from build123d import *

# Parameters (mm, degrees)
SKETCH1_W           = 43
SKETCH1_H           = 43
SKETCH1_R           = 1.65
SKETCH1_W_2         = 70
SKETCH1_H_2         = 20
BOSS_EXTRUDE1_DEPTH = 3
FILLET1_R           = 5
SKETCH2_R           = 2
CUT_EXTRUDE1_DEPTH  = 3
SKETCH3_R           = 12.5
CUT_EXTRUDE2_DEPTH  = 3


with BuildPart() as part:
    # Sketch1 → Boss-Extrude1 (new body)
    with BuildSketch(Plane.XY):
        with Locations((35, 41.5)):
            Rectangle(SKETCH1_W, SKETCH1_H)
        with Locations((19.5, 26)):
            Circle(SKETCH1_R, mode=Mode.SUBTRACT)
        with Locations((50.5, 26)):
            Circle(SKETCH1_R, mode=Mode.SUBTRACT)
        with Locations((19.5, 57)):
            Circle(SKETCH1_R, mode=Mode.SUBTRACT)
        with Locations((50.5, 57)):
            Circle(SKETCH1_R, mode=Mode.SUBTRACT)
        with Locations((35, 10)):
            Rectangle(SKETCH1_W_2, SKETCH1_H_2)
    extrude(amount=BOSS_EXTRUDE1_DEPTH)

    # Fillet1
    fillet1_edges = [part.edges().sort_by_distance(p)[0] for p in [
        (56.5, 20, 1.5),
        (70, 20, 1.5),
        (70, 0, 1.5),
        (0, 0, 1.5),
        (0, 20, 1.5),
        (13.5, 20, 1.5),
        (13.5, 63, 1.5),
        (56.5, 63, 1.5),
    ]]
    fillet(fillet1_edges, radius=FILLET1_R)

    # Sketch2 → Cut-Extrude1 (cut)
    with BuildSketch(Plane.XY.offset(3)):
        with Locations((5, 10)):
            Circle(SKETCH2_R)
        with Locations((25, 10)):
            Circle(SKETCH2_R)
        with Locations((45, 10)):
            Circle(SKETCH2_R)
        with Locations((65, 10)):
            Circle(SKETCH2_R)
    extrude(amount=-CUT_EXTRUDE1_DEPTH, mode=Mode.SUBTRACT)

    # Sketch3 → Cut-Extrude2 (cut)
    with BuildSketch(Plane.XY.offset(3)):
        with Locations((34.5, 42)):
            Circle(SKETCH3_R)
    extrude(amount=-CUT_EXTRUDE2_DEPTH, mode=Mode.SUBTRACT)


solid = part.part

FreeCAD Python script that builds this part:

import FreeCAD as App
import Part
import Sketcher
from FreeCAD import Vector
Q = App.Units.Quantity


def edges_at(feature, points):
    """Names of the edges that pass closest to the given points."""
    edges = feature.Shape.Edges
    near = lambda p: min(range(len(edges)), key=lambda i: edges[i].distToShape(Part.Vertex(*p))[0])
    return sorted({f"Edge{near(p) + 1}" for p in points})

doc = App.newDocument("Part")
body = doc.addObject("PartDesign::Body", "Body")

sketch1 = body.newObject("Sketcher::SketchObject", "Sketch")
sketch1.AttachmentSupport = (doc.getObject("XY_Plane"), [""])
sketch1.MapMode = "FlatFace"
sketch1.addGeometry(Part.LineSegment(Vector(13.5, 63, 0), Vector(13.5, 20, 0)), False)
sketch1.addGeometry(Part.LineSegment(Vector(13.5, 20, 0), Vector(0, 20, 0)), False)
sketch1.addGeometry(Part.LineSegment(Vector(0, 20, 0), Vector(0, 0, 0)), False)
sketch1.addGeometry(Part.LineSegment(Vector(0, 0, 0), Vector(70, 0, 0)), False)
sketch1.addGeometry(Part.LineSegment(Vector(70, 0, 0), Vector(70, 20, 0)), False)
sketch1.addGeometry(Part.LineSegment(Vector(70, 20, 0), Vector(56.5, 20, 0)), False)
sketch1.addGeometry(Part.LineSegment(Vector(56.5, 20, 0), Vector(56.5, 63, 0)), False)
sketch1.addGeometry(Part.LineSegment(Vector(56.5, 63, 0), Vector(13.5, 63, 0)), False)
sketch1.addGeometry(Part.Circle(Vector(19.5, 26, 0), Vector(0, 0, 1), 1.65), False)
sketch1.addGeometry(Part.Circle(Vector(50.5, 26, 0), Vector(0, 0, 1), 1.65), False)
sketch1.addGeometry(Part.Circle(Vector(19.5, 57, 0), Vector(0, 0, 1), 1.65), False)
sketch1.addGeometry(Part.Circle(Vector(50.5, 57, 0), Vector(0, 0, 1), 1.65), False)
sketch1.addConstraint(Sketcher.Constraint("Coincident", 0, 2, 1, 1))
sketch1.addConstraint(Sketcher.Constraint("Coincident", 1, 2, 2, 1))
sketch1.addConstraint(Sketcher.Constraint("Coincident", 2, 2, 3, 1))
sketch1.addConstraint(Sketcher.Constraint("Coincident", 3, 2, 4, 1))
sketch1.addConstraint(Sketcher.Constraint("Coincident", 4, 2, 5, 1))
sketch1.addConstraint(Sketcher.Constraint("Coincident", 5, 2, 6, 1))
sketch1.addConstraint(Sketcher.Constraint("Coincident", 6, 2, 7, 1))
sketch1.addConstraint(Sketcher.Constraint("Coincident", 7, 2, 0, 1))
sketch1.addConstraint(Sketcher.Constraint("Vertical", 0))
sketch1.addConstraint(Sketcher.Constraint("Horizontal", 1))
sketch1.addConstraint(Sketcher.Constraint("Vertical", 2))
sketch1.addConstraint(Sketcher.Constraint("Horizontal", 3))
sketch1.addConstraint(Sketcher.Constraint("Vertical", 4))
sketch1.addConstraint(Sketcher.Constraint("Horizontal", 5))
sketch1.addConstraint(Sketcher.Constraint("Vertical", 6))
sketch1.addConstraint(Sketcher.Constraint("Horizontal", 7))
sketch1.addConstraint(Sketcher.Constraint("Coincident", 2, 2, -1, 1))
sketch1.addConstraint(Sketcher.Constraint("Equal", 8, 9))
sketch1.addConstraint(Sketcher.Constraint("Equal", 9, 10))
sketch1.addConstraint(Sketcher.Constraint("Equal", 10, 11))
sketch1.addConstraint(Sketcher.Constraint("Horizontal", 8, 3, 9, 3))
sketch1.addConstraint(Sketcher.Constraint("Horizontal", 10, 3, 11, 3))
sketch1.addConstraint(Sketcher.Constraint("Horizontal", 1, 2, 4, 2))
sketch1.addConstraint(Sketcher.Constraint("Vertical", 8, 3, 10, 3))
sketch1.addConstraint(Sketcher.Constraint("Vertical", 9, 3, 11, 3))
sketch1.addConstraint(Sketcher.Constraint("Equal", 1, 5))
sketch1.addConstraint(Sketcher.Constraint("Equal", 7, 0))
sketch1.addConstraint(Sketcher.Constraint("Diameter", 8, Q("3.3 mm")))
sketch1.addConstraint(Sketcher.Constraint("DistanceX", 3, 1, 3, 2, Q("70 mm")))
sketch1.addConstraint(Sketcher.Constraint("DistanceX", 7, 2, 7, 1, Q("43 mm")))
sketch1.addConstraint(Sketcher.Constraint("DistanceY", 2, 2, 2, 1, Q("20 mm")))
sketch1.addConstraint(Sketcher.Constraint("DistanceY", -1, 1, 8, 3, Q("26 mm")))
sketch1.addConstraint(Sketcher.Constraint("DistanceY", -1, 1, 10, 3, Q("57 mm")))
sketch1.addConstraint(Sketcher.Constraint("DistanceX", 8, 3, 9, 3, Q("31 mm")))
sketch1.addConstraint(Sketcher.Constraint("DistanceX", 0, 2, 8, 3, Q("6 mm")))
pad1 = body.newObject("PartDesign::Pad", "Pad")
pad1.Profile = sketch1
pad1.Length = 3
doc.recompute()

fillet = body.newObject("PartDesign::Fillet", "Fillet")
fillet.Base = (pad1, edges_at(pad1, [
    (56.5, 20, 1.5),
    (70, 20, 1.5),
    (70, 0, 1.5),
    (0, 0, 1.5),
    (0, 20, 1.5),
    (13.5, 20, 1.5),
    (13.5, 63, 1.5),
    (56.5, 63, 1.5),
]))
fillet.Radius = 5

sketch2 = body.newObject("Sketcher::SketchObject", "Sketch001")
sketch2.AttachmentSupport = (doc.getObject("XY_Plane"), [""])
sketch2.MapMode = "FlatFace"
sketch2.AttachmentOffset = App.Placement(Vector(0, 0, 3), App.Rotation())
sketch2.addGeometry(Part.Circle(Vector(5, 10, 0), Vector(0, 0, 1), 2), False)
sketch2.addGeometry(Part.Circle(Vector(25, 10, 0), Vector(0, 0, 1), 2), False)
sketch2.addGeometry(Part.Circle(Vector(45, 10, 0), Vector(0, 0, 1), 2), False)
sketch2.addGeometry(Part.Circle(Vector(65, 10, 0), Vector(0, 0, 1), 2), False)
sketch2.addConstraint(Sketcher.Constraint("Equal", 0, 1))
sketch2.addConstraint(Sketcher.Constraint("Equal", 1, 2))
sketch2.addConstraint(Sketcher.Constraint("Equal", 2, 3))
sketch2.addConstraint(Sketcher.Constraint("Horizontal", 0, 3, 1, 3))
sketch2.addConstraint(Sketcher.Constraint("Horizontal", 1, 3, 2, 3))
sketch2.addConstraint(Sketcher.Constraint("Horizontal", 2, 3, 3, 3))
sketch2.addConstraint(Sketcher.Constraint("Diameter", 0, Q("4 mm")))
sketch2.addConstraint(Sketcher.Constraint("DistanceX", -1, 1, 0, 3, Q("5 mm")))
sketch2.addConstraint(Sketcher.Constraint("DistanceY", -1, 1, 0, 3, Q("10 mm")))
sketch2.addConstraint(Sketcher.Constraint("DistanceX", -1, 1, 1, 3, Q("25 mm")))
sketch2.addConstraint(Sketcher.Constraint("DistanceX", -1, 1, 2, 3, Q("45 mm")))
sketch2.addConstraint(Sketcher.Constraint("DistanceX", -1, 1, 3, 3, Q("65 mm")))
pocket1 = body.newObject("PartDesign::Pocket", "Pocket")
pocket1.Profile = sketch2
pocket1.Length = 3

sketch3 = body.newObject("Sketcher::SketchObject", "Sketch002")
sketch3.AttachmentSupport = (doc.getObject("XY_Plane"), [""])
sketch3.MapMode = "FlatFace"
sketch3.AttachmentOffset = App.Placement(Vector(0, 0, 3), App.Rotation())
sketch3.addGeometry(Part.Circle(Vector(34.5, 42, 0), Vector(0, 0, 1), 12.5), False)
sketch3.addConstraint(Sketcher.Constraint("Diameter", 0, Q("25 mm")))
sketch3.addConstraint(Sketcher.Constraint("DistanceY", -1, 1, 0, 3, Q("42 mm")))
sketch3.addConstraint(Sketcher.Constraint("DistanceX", -1, 1, 0, 3, Q("34.5 mm")))
pocket2 = body.newObject("PartDesign::Pocket", "Pocket001")
pocket2.Profile = sketch3
pocket2.Length = 3

doc.recompute()
